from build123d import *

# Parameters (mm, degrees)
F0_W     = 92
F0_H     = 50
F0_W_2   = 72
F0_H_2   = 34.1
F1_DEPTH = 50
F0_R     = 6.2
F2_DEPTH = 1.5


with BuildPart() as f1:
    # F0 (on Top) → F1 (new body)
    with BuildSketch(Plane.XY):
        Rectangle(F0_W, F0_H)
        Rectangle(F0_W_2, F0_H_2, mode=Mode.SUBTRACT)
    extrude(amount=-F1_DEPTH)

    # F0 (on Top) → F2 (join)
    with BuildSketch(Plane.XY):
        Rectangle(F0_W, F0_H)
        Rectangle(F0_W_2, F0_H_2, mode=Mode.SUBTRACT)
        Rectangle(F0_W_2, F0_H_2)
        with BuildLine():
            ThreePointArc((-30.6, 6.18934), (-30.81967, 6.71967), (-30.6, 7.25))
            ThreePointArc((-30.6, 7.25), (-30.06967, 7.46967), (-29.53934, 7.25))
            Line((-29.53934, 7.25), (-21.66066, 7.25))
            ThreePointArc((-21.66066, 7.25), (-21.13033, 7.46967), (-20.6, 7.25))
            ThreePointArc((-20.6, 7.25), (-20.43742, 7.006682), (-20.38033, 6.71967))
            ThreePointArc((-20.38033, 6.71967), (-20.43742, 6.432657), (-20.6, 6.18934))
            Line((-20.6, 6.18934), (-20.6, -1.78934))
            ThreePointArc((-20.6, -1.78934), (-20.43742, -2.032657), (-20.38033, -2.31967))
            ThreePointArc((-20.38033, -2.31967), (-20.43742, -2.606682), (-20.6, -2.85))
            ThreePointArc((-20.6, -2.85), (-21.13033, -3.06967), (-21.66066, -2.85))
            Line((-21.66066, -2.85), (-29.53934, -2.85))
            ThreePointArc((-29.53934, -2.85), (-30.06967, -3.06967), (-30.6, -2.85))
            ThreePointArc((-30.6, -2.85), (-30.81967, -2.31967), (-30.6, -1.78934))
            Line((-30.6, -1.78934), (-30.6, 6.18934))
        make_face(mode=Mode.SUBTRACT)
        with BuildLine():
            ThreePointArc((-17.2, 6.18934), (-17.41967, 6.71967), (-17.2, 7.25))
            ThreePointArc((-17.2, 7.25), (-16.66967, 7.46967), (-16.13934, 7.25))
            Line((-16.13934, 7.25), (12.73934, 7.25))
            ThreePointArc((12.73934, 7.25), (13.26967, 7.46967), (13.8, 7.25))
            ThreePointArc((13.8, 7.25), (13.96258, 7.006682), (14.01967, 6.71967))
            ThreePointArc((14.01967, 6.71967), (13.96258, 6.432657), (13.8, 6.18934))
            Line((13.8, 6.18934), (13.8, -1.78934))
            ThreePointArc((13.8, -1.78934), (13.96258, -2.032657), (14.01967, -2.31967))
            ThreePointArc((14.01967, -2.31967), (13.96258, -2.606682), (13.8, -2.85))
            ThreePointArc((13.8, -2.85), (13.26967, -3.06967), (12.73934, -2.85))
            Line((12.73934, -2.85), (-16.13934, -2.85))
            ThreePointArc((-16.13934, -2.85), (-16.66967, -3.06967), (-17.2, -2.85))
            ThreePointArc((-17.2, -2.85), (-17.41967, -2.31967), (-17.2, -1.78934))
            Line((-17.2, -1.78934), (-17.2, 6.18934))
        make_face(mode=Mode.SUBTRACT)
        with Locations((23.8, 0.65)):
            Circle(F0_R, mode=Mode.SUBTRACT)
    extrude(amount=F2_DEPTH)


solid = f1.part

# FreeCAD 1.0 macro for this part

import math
import FreeCAD as App
import Part
import Sketcher
from FreeCAD import Vector
Q = App.Units.Quantity

doc = App.newDocument("Part")
body = doc.addObject("PartDesign::Body", "Body")

# Sketch on XY plane
sketch1 = doc.addObject("Sketcher::SketchObject", "Sketch")
body.addObject(sketch1)
sketch1.AttachmentSupport = (doc.XY_Plane, [""])
sketch1.MapMode = "FlatFace"
sketch1.addGeometry([
    Part.LineSegment(Vector(-46, 25, 0), Vector(-46, -25, 0)),  # 0
    Part.LineSegment(Vector(-46, -25, 0), Vector(46, -25, 0)),  # 1
    Part.LineSegment(Vector(46, -25, 0), Vector(46, 25, 0)),  # 2
    Part.LineSegment(Vector(46, 25, 0), Vector(-46, 25, 0)),  # 3
    Part.LineSegment(Vector(36, -17, 0), Vector(-36, -17, 0)),  # 4
    Part.LineSegment(Vector(-36, -17, 0), Vector(-36, 17, 0)),  # 5
    Part.LineSegment(Vector(-36, 17, 0), Vector(36, 17, 0)),  # 6
    Part.LineSegment(Vector(36, 17, 0), Vector(36, -17, 0)),  # 7
], False)
sketch1.addConstraint([
    Sketcher.Constraint("Coincident", 0, 2, 1, 1),
    Sketcher.Constraint("Coincident", 1, 2, 2, 1),
    Sketcher.Constraint("Coincident", 2, 2, 3, 1),
    Sketcher.Constraint("Coincident", 3, 2, 0, 1),
    Sketcher.Constraint("Coincident", 4, 2, 5, 1),
    Sketcher.Constraint("Coincident", 5, 2, 6, 1),
    Sketcher.Constraint("Coincident", 6, 2, 7, 1),
    Sketcher.Constraint("Coincident", 7, 2, 4, 1),
    Sketcher.Constraint("Vertical", 0),
    Sketcher.Constraint("Horizontal", 1),
    Sketcher.Constraint("Vertical", 2),
    Sketcher.Constraint("Horizontal", 3),
    Sketcher.Constraint("Horizontal", 4),
    Sketcher.Constraint("Vertical", 5),
    Sketcher.Constraint("Horizontal", 6),
    Sketcher.Constraint("Vertical", 7),
    Sketcher.Constraint("Symmetric", 0, 2, 2, 2, -1, 1),
    Sketcher.Constraint("Symmetric", 4, 2, 6, 2, -1, 1),
    Sketcher.Constraint("DistanceX", 1, 1, 1, 2, Q("92 mm")),
    Sketcher.Constraint("DistanceX", 4, 2, 4, 1, Q("72 mm")),
    Sketcher.Constraint("DistanceY", 0, 2, 0, 1, Q("50 mm")),
    Sketcher.Constraint("DistanceY", 5, 1, 5, 2, Q("34.1 mm")),
])
pad1 = doc.addObject("PartDesign::Pad", "Pad")
body.addObject(pad1)
pad1.Profile = sketch1
pad1.Length = 50
pad1.Reversed = True

# Sketch on XY plane
sketch2 = doc.addObject("Sketcher::SketchObject", "Sketch001")
body.addObject(sketch2)
sketch2.AttachmentSupport = (doc.XY_Plane, [""])
sketch2.MapMode = "FlatFace"
sketch2.addGeometry([
    Part.LineSegment(Vector(-46, 25, 0), Vector(-46, -25, 0)),  # 0
    Part.LineSegment(Vector(-46, -25, 0), Vector(46, -25, 0)),  # 1
    Part.LineSegment(Vector(46, -25, 0), Vector(46, 25, 0)),  # 2
    Part.LineSegment(Vector(46, 25, 0), Vector(-46, 25, 0)),  # 3
    Part.Circle(Vector(23.8, 0.7, 0), Vector(0, 0, 1), 6.2),  # 4
    Part.LineSegment(Vector(-30.6, -1.8, 0), Vector(-30.6, 6.2, 0)),  # 5
    Part.ArcOfCircle(Part.Circle(Vector(-30.1, 6.7, 0), Vector(0, 0, 1), 0.7), math.radians(135), math.radians(225)),  # 6
    Part.ArcOfCircle(Part.Circle(Vector(-30.1, 6.7, 0), Vector(0, 0, 1), 0.7), math.radians(45), math.radians(135)),  # 7
    Part.LineSegment(Vector(-29.5, 7.2, 0), Vector(-21.7, 7.2, 0)),  # 8
    Part.ArcOfCircle(Part.Circle(Vector(-21.1, 6.7, 0), Vector(0, 0, 1), 0.7), math.radians(45), math.radians(135)),  # 9
    Part.ArcOfCircle(Part.Circle(Vector(-21.1, 6.7, 0), Vector(0, 0, 1), 0.7), math.radians(0), math.radians(45)),  # 10
    Part.ArcOfCircle(Part.Circle(Vector(-21.1, 6.7, 0), Vector(0, 0, 1), 0.7), math.radians(-45), math.radians(0)),  # 11
    Part.LineSegment(Vector(-20.6, 6.2, 0), Vector(-20.6, -1.8, 0)),  # 12
    Part.ArcOfCircle(Part.Circle(Vector(-21.1, -2.3, 0), Vector(0, 0, 1), 0.7), math.radians(0), math.radians(45)),  # 13
    Part.ArcOfCircle(Part.Circle(Vector(-21.1, -2.3, 0), Vector(0, 0, 1), 0.7), math.radians(-45), math.radians(0)),  # 14
    Part.ArcOfCircle(Part.Circle(Vector(-21.1, -2.3, 0), Vector(0, 0, 1), 0.7), math.radians(-135), math.radians(-45)),  # 15
    Part.LineSegment(Vector(-21.7, -2.9, 0), Vector(-29.5, -2.9, 0)),  # 16
    Part.ArcOfCircle(Part.Circle(Vector(-30.1, -2.3, 0), Vector(0, 0, 1), 0.7), math.radians(-135), math.radians(-45)),  # 17
    Part.ArcOfCircle(Part.Circle(Vector(-30.1, -2.3, 0), Vector(0, 0, 1), 0.7), math.radians(135), math.radians(225)),  # 18
    Part.LineSegment(Vector(-17.2, -1.8, 0), Vector(-17.2, 6.2, 0)),  # 19
    Part.ArcOfCircle(Part.Circle(Vector(-16.7, 6.7, 0), Vector(0, 0, 1), 0.7), math.radians(135), math.radians(225)),  # 20
    Part.ArcOfCircle(Part.Circle(Vector(-16.7, 6.7, 0), Vector(0, 0, 1), 0.7), math.radians(45), math.radians(135)),  # 21
    Part.LineSegment(Vector(-16.1, 7.2, 0), Vector(12.7, 7.2, 0)),  # 22
    Part.ArcOfCircle(Part.Circle(Vector(13.3, 6.7, 0), Vector(0, 0, 1), 0.7), math.radians(45), math.radians(135)),  # 23
    Part.ArcOfCircle(Part.Circle(Vector(13.3, 6.7, 0), Vector(0, 0, 1), 0.7), math.radians(0), math.radians(45)),  # 24
    Part.ArcOfCircle(Part.Circle(Vector(13.3, 6.7, 0), Vector(0, 0, 1), 0.7), math.radians(-45), math.radians(0)),  # 25
    Part.LineSegment(Vector(13.8, 6.2, 0), Vector(13.8, -1.8, 0)),  # 26
    Part.ArcOfCircle(Part.Circle(Vector(13.3, -2.3, 0), Vector(0, 0, 1), 0.7), math.radians(0), math.radians(45)),  # 27
    Part.ArcOfCircle(Part.Circle(Vector(13.3, -2.3, 0), Vector(0, 0, 1), 0.7), math.radians(-45), math.radians(0)),  # 28
    Part.ArcOfCircle(Part.Circle(Vector(13.3, -2.3, 0), Vector(0, 0, 1), 0.7), math.radians(-135), math.radians(-45)),  # 29
    Part.LineSegment(Vector(12.7, -2.9, 0), Vector(-16.1, -2.9, 0)),  # 30
    Part.ArcOfCircle(Part.Circle(Vector(-16.7, -2.3, 0), Vector(0, 0, 1), 0.7), math.radians(-135), math.radians(-45)),  # 31
    Part.ArcOfCircle(Part.Circle(Vector(-16.7, -2.3, 0), Vector(0, 0, 1), 0.7), math.radians(135), math.radians(225)),  # 32
], False)
sketch2.addConstraint([
    Sketcher.Constraint("Coincident", 0, 2, 1, 1),
    Sketcher.Constraint("Coincident", 1, 2, 2, 1),
    Sketcher.Constraint("Coincident", 2, 2, 3, 1),
    Sketcher.Constraint("Coincident", 3, 2, 0, 1),
    Sketcher.Constraint("Coincident", 5, 2, 6, 2),
    Sketcher.Constraint("Tangent", 6, 1, 7, 2),
    Sketcher.Constraint("Coincident", 7, 1, 8, 1),
    Sketcher.Constraint("Coincident", 8, 2, 9, 2),
    Sketcher.Constraint("Tangent", 9, 1, 10, 2),
    Sketcher.Constraint("Coincident", 10, 1, 11, 2),
    Sketcher.Constraint("Coincident", 11, 1, 12, 1),
    Sketcher.Constraint("Coincident", 12, 2, 13, 2),
    Sketcher.Constraint("Coincident", 13, 1, 14, 2),
    Sketcher.Constraint("Tangent", 14, 1, 15, 2),
    Sketcher.Constraint("Coincident", 15, 1, 16, 1),
    Sketcher.Constraint("Coincident", 16, 2, 17, 2),
    Sketcher.Constraint("Tangent", 17, 1, 18, 2),
    Sketcher.Constraint("Coincident", 18, 1, 5, 1),
    Sketcher.Constraint("Coincident", 19, 2, 20, 2),
    Sketcher.Constraint("Tangent", 20, 1, 21, 2),
    Sketcher.Constraint("Coincident", 21, 1, 22, 1),
    Sketcher.Constraint("Coincident", 22, 2, 23, 2),
    Sketcher.Constraint("Tangent", 23, 1, 24, 2),
    Sketcher.Constraint("Coincident", 24, 1, 25, 2),
    Sketcher.Constraint("Coincident", 25, 1, 26, 1),
    Sketcher.Constraint("Coincident", 26, 2, 27, 2),
    Sketcher.Constraint("Coincident", 27, 1, 28, 2),
    Sketcher.Constraint("Tangent", 28, 1, 29, 2),
    Sketcher.Constraint("Coincident", 29, 1, 30, 1),
    Sketcher.Constraint("Coincident", 30, 2, 31, 2),
    Sketcher.Constraint("Tangent", 31, 1, 32, 2),
    Sketcher.Constraint("Coincident", 32, 1, 19, 1),
    Sketcher.Constraint("Vertical", 0),
    Sketcher.Constraint("Horizontal", 1),
    Sketcher.Constraint("Vertical", 2),
    Sketcher.Constraint("Horizontal", 3),
    Sketcher.Constraint("Vertical", 5),
    Sketcher.Constraint("Horizontal", 8),
    Sketcher.Constraint("Vertical", 12),
    Sketcher.Constraint("Horizontal", 16),
    Sketcher.Constraint("Vertical", 19),
    Sketcher.Constraint("Horizontal", 22),
    Sketcher.Constraint("Vertical", 26),
    Sketcher.Constraint("Horizontal", 30),
    Sketcher.Constraint("Coincident", 11, 3, 9, 3),
    Sketcher.Constraint("Coincident", 14, 3, 13, 3),
    Sketcher.Constraint("Coincident", 25, 3, 23, 3),
    Sketcher.Constraint("Coincident", 28, 3, 27, 3),
    Sketcher.Constraint("Equal", 6, 7),
    Sketcher.Constraint("Equal", 7, 9),
    Sketcher.Constraint("Equal", 9, 10),
    Sketcher.Constraint("Equal", 11, 13),
    Sketcher.Constraint("Equal", 14, 15),
    Sketcher.Constraint("Equal", 15, 17),
    Sketcher.Constraint("Equal", 17, 18),
    Sketcher.Constraint("Equal", 18, 20),
    Sketcher.Constraint("Equal", 20, 21),
    Sketcher.Constraint("Equal", 21, 23),
    Sketcher.Constraint("Equal", 23, 24),
    Sketcher.Constraint("Equal", 25, 27),
    Sketcher.Constraint("Equal", 28, 29),
    Sketcher.Constraint("Equal", 29, 31),
    Sketcher.Constraint("Equal", 31, 32),
    Sketcher.Constraint("Symmetric", 0, 2, 2, 2, -1, 1),
    Sketcher.Constraint("Horizontal", 7, 3, 9, 3),
    Sketcher.Constraint("Horizontal", 15, 3, 17, 3),
    Sketcher.Constraint("Horizontal", 10, 3, 20, 3),
    Sketcher.Constraint("Horizontal", 21, 3, 23, 3),
    Sketcher.Constraint("Horizontal", 13, 3, 27, 3),
    Sketcher.Constraint("Horizontal", 29, 3, 31, 3),
    Sketcher.Constraint("Horizontal", 6, 1, 7, 1),
    Sketcher.Constraint("Horizontal", 8, 2, 9, 1),
    Sketcher.Constraint("Horizontal", 24, 3, 10, 1),
    Sketcher.Constraint("Horizontal", 5, 2, 11, 1),
    Sketcher.Constraint("Horizontal", 32, 3, 13, 1),
    Sketcher.Constraint("Horizontal", 14, 1, 15, 1),
    Sketcher.Constraint("Horizontal", 16, 2, 17, 1),
    Sketcher.Constraint("Horizontal", 12, 2, 18, 1),
    Sketcher.Constraint("Horizontal", 11, 1, 19, 2),
    Sketcher.Constraint("Horizontal", 9, 1, 20, 1),
    Sketcher.Constraint("Horizontal", 20, 1, 21, 1),
    Sketcher.Constraint("Horizontal", 22, 2, 23, 1),
    Sketcher.Constraint("Horizontal", 10, 1, 24, 1),
    Sketcher.Constraint("Horizontal", 19, 2, 25, 1),
    Sketcher.Constraint("Horizontal", 18, 1, 26, 2),
    Sketcher.Constraint("Horizontal", 13, 1, 27, 1),
    Sketcher.Constraint("Horizontal", 17, 1, 28, 1),
    Sketcher.Constraint("Horizontal", 28, 1, 29, 1),
    Sketcher.Constraint("Horizontal", 30, 2, 31, 1),
    Sketcher.Constraint("Horizontal", 26, 2, 32, 1),
    Sketcher.Constraint("Vertical", 11, 3, 13, 3),
    Sketcher.Constraint("Vertical", 5, 2, 6, 1),
    Sketcher.Constraint("Vertical", 12, 2, 14, 1),
    Sketcher.Constraint("Diameter", 4, Q("12.4 mm")),
    Sketcher.Constraint("DistanceX", 1, 1, 1, 2, Q("92 mm")),
    Sketcher.Constraint("DistanceY", 0, 2, 0, 1, Q("50 mm")),
    Sketcher.Constraint("Radius", 6, Q("0.75 mm")),
    Sketcher.Constraint("DistanceX", -1, 1, 4, 3, Q("23.8 mm")),
    Sketcher.Constraint("DistanceX", 5, 2, -1, 1, Q("30.6 mm")),
    Sketcher.Constraint("DistanceX", 9, 1, -1, 1, Q("20.6 mm")),
    Sketcher.Constraint("DistanceX", 19, 2, -1, 1, Q("17.2 mm")),
    Sketcher.Constraint("DistanceX", -1, 1, 23, 1, Q("13.8 mm")),
    Sketcher.Constraint("DistanceY", -1, 1, 4, 3, Q("0.65 mm")),
    Sketcher.Constraint("DistanceY", -1, 1, 6, 1, Q("7.25 mm")),
    Sketcher.Constraint("DistanceY", 14, 1, -1, 1, Q("2.85 mm")),
    Sketcher.Constraint("DistanceX", 8, 1, 8, 2, Q("7.87868 mm")),
])
pad2 = doc.addObject("PartDesign::Pad", "Pad001")
body.addObject(pad2)
pad2.Profile = sketch2
pad2.Length = 1.5

doc.recompute()
